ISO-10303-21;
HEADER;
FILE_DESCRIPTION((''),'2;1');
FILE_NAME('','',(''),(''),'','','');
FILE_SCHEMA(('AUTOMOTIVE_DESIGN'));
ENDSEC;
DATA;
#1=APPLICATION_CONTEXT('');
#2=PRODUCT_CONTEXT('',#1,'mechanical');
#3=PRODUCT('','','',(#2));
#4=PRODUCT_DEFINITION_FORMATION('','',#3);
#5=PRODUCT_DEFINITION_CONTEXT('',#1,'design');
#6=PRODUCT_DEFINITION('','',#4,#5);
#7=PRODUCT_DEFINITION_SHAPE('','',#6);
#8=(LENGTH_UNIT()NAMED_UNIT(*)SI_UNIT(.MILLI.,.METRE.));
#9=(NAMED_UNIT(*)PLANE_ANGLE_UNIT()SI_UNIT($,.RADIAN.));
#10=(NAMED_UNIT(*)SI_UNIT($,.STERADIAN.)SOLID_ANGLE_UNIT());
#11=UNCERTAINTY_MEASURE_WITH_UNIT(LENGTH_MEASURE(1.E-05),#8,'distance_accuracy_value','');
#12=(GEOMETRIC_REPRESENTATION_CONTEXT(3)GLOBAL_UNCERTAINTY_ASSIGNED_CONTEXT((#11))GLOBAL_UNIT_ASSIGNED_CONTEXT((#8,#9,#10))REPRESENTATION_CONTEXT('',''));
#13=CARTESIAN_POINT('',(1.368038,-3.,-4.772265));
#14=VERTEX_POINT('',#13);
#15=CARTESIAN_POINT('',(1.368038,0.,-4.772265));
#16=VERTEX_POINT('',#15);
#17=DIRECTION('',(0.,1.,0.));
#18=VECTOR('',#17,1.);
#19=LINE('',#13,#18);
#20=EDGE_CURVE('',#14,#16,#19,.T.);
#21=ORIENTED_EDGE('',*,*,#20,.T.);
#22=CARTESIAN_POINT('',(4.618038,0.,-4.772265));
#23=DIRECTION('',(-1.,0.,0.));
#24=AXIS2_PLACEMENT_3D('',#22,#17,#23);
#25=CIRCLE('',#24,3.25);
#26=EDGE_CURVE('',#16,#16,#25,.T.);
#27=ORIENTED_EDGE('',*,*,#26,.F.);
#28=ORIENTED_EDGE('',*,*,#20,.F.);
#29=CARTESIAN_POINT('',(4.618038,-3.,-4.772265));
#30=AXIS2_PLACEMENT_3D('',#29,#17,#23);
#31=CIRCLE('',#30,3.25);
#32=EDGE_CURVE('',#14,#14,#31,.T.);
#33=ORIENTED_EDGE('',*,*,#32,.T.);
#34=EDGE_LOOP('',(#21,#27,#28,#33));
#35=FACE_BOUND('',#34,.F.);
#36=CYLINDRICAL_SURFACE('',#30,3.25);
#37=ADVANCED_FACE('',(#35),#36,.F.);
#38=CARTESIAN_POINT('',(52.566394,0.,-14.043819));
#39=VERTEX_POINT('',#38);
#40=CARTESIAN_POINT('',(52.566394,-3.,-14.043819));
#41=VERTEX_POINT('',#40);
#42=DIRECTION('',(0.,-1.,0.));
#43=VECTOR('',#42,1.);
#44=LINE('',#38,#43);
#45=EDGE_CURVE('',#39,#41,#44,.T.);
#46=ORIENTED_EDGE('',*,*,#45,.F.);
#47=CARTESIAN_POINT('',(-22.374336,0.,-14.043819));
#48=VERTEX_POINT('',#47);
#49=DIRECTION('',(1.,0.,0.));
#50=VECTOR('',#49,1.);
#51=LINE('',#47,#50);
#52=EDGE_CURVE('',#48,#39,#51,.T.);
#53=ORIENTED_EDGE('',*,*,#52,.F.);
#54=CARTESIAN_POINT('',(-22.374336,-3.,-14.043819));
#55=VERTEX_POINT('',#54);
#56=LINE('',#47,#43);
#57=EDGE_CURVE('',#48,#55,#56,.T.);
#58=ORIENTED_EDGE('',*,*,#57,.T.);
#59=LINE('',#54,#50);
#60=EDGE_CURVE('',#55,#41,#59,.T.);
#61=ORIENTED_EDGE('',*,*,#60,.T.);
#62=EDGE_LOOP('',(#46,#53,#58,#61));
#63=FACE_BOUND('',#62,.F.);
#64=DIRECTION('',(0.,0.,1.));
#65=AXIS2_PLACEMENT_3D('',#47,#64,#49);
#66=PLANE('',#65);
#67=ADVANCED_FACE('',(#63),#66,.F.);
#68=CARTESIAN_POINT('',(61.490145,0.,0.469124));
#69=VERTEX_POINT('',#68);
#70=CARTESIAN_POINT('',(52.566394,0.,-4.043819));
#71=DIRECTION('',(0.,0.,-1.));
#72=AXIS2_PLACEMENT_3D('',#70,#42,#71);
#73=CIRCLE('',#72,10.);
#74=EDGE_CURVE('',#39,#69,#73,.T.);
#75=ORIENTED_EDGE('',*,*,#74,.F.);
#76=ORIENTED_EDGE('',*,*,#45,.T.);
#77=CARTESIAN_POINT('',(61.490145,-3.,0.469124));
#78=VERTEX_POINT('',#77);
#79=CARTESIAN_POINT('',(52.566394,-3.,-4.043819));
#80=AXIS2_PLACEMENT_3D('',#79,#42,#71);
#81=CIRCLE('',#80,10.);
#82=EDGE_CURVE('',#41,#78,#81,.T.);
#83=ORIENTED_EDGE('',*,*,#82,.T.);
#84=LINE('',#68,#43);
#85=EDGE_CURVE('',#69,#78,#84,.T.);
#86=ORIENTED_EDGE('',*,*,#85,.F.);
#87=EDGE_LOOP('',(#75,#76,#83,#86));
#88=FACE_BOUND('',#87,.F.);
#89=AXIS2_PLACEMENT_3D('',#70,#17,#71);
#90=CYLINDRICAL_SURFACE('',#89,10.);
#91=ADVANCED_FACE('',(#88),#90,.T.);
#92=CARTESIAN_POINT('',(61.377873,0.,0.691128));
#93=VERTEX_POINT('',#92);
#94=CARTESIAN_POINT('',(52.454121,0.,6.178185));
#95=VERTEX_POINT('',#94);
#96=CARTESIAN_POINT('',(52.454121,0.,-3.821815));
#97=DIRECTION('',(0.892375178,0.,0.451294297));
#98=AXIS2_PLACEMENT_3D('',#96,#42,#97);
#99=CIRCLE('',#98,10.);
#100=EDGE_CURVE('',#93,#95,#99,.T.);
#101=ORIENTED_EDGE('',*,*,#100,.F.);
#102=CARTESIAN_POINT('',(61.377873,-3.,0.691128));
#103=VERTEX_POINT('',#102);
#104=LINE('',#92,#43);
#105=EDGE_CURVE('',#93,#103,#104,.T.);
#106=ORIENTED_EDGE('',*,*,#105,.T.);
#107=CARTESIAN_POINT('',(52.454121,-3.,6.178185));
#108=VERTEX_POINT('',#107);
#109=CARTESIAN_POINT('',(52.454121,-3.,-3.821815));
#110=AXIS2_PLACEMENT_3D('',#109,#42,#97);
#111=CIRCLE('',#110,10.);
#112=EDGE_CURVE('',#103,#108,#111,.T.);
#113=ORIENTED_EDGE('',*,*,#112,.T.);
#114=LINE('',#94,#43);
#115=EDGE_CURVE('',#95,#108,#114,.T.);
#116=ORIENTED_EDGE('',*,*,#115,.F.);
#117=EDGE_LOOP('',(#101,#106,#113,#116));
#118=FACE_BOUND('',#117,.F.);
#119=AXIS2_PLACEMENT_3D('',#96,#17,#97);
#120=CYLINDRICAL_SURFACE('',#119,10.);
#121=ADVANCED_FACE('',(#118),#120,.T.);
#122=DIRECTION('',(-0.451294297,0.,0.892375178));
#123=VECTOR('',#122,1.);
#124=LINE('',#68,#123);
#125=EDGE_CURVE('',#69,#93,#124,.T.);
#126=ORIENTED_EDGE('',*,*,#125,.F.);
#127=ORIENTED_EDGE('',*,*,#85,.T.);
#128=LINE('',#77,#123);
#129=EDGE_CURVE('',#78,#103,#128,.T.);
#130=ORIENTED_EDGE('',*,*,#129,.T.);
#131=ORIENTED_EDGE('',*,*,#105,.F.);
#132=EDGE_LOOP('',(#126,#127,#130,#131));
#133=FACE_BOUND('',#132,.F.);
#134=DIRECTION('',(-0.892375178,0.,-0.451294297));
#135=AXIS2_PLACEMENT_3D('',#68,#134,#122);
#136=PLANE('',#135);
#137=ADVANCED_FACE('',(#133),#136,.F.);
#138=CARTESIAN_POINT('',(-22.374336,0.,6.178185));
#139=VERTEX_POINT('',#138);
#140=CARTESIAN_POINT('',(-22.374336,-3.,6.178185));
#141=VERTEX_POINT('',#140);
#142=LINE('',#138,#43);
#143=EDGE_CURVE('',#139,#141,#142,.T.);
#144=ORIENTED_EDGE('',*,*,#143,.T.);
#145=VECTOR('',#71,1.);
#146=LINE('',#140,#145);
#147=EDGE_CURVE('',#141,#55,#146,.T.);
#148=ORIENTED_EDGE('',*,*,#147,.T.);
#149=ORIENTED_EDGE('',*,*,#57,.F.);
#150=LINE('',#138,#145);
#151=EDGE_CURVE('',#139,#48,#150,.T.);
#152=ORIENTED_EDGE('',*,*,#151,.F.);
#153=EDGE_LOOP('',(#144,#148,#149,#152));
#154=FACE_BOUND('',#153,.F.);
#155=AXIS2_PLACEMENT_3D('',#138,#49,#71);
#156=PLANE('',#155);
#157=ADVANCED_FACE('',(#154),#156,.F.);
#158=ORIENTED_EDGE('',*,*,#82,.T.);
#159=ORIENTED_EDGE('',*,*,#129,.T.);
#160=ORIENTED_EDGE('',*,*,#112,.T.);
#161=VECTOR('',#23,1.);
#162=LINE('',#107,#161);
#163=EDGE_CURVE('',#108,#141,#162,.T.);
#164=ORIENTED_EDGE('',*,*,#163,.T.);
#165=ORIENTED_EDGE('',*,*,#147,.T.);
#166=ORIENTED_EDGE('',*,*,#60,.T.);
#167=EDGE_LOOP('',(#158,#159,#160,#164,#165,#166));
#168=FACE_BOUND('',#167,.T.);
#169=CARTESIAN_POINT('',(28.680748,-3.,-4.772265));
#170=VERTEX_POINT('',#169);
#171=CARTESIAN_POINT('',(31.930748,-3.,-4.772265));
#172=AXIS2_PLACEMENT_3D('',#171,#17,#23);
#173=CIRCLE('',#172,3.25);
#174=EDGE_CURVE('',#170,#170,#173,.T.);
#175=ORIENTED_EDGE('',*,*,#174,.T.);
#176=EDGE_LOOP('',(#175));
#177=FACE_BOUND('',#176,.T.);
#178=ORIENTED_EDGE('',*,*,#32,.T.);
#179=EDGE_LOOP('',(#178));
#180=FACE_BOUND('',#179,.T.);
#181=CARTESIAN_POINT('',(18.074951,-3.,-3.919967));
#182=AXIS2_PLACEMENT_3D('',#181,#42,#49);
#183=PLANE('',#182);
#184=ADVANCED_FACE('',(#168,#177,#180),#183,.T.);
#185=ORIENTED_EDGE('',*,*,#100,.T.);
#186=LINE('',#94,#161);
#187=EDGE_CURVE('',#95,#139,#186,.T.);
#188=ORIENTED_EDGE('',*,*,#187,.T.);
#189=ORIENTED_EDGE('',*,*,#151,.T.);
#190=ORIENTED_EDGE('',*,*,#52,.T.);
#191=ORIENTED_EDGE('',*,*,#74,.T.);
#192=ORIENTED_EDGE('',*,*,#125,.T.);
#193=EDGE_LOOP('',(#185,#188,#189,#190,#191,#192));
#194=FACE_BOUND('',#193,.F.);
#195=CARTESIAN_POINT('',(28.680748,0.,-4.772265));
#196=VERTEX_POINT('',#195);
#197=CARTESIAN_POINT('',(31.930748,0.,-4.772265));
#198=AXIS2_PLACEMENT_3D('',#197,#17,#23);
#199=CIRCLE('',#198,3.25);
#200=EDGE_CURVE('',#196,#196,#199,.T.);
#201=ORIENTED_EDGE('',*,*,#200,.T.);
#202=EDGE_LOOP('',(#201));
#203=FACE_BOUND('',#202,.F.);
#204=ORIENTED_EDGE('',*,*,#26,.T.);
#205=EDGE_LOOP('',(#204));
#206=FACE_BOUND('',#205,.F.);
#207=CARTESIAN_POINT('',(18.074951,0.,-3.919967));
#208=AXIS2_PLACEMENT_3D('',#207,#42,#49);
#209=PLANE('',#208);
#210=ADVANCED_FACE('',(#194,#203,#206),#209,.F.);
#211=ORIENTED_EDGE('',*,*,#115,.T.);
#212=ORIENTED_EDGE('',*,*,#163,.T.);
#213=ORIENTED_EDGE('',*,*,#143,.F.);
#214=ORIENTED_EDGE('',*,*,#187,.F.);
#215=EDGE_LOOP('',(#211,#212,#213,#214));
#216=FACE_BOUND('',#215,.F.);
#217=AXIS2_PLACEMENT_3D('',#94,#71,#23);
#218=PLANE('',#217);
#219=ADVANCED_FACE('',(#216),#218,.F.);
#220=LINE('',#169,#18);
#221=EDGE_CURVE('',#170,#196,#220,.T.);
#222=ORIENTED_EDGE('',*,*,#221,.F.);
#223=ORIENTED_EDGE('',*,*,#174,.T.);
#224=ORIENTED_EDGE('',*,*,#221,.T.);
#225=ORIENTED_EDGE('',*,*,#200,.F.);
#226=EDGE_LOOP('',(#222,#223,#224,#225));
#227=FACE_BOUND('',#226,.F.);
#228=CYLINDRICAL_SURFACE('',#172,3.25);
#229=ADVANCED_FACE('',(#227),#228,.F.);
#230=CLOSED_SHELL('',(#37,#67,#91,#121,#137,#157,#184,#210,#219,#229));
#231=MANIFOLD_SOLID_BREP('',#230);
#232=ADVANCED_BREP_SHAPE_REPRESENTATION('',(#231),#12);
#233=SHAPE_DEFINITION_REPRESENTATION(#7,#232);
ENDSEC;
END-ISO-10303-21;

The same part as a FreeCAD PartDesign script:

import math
import FreeCAD as App
import Part
import Sketcher
from FreeCAD import Vector

doc = App.newDocument("Part")
body = doc.addObject("PartDesign::Body", "Body")

sketch1 = body.newObject("Sketcher::SketchObject", "Sketch")
sketch1.AttachmentSupport = (doc.getObject("XZ_Plane"), [""])
sketch1.MapMode = "FlatFace"
sketch1.addGeometry([
    Part.LineSegment(Vector(52.454121, 6.178185, 0), Vector(-22.374336, 6.178185, 0)),
    Part.LineSegment(Vector(-22.374336, 6.178185, 0), Vector(-22.374336, -14.043819, 0)),
    Part.LineSegment(Vector(-22.374336, -14.043819, 0), Vector(52.566394, -14.043819, 0)),
    Part.ArcOfCircle(Part.Circle(Vector(52.566394, -4.043819, 0), Vector(0, 0, 1), 10), math.radians(-90), math.radians(26.826755)),
    Part.LineSegment(Vector(61.490145, 0.469124, 0), Vector(61.377873, 0.691128, 0)),
    Part.ArcOfCircle(Part.Circle(Vector(52.454121, -3.821815, 0), Vector(0, 0, 1), 10), math.radians(26.826755), math.radians(90)),
], False)
sketch1.addConstraint([
    Sketcher.Constraint("Coincident", 0, 2, 1, 1),
    Sketcher.Constraint("Coincident", 1, 2, 2, 1),
    Sketcher.Constraint("Coincident", 2, 2, 3, 1),
    Sketcher.Constraint("Coincident", 3, 2, 4, 1),
    Sketcher.Constraint("Coincident", 4, 2, 5, 1),
    Sketcher.Constraint("Coincident", 5, 2, 0, 1),
    Sketcher.Constraint("Horizontal", 0),
    Sketcher.Constraint("Vertical", 1),
    Sketcher.Constraint("Horizontal", 2),
    Sketcher.Constraint("Radius", 3, 10.0),
    Sketcher.Constraint("Radius", 5, 10.0),
    Sketcher.Constraint("DistanceX", 2, 1, 2, 2, 74.940729),
    Sketcher.Constraint("Distance", 4, 0.248779),
    Sketcher.Constraint("DistanceX", 0, 2, 0, 1, 74.828457),
    Sketcher.Constraint("DistanceY", 1, 2, 1, 1, 20.222004),
    Sketcher.Constraint("DistanceY", 3, 3, -1, 1, 4.043819),
    Sketcher.Constraint("DistanceX", -1, 1, 5, 3, 52.454121),
    Sketcher.Constraint("DistanceX", -1, 1, 5, 2, 52.454121),
    Sketcher.Constraint("DistanceX", 0, 2, 3, 3, 74.940729),
    Sketcher.Constraint("DistanceX", 3, 3, 3, 2, 8.923752),
])
pad1 = body.newObject("PartDesign::Pad", "Pad")
pad1.Profile = sketch1
pad1.Length = 3

sketch2 = body.newObject("Sketcher::SketchObject", "Sketch001")
sketch2.AttachmentSupport = (doc.getObject("XZ_Plane"), [""])
sketch2.MapMode = "FlatFace"
sketch2.addGeometry([
    Part.Circle(Vector(31.9, -4.8, 0), Vector(0, 0, 1), 1.6),
    Part.Circle(Vector(4.6, -4.8, 0), Vector(0, 0, 1), 1.6),
], False)
sketch2.addConstraint([
    Sketcher.Constraint("Equal", 0, 1),
    Sketcher.Constraint("Horizontal", 0, 3, 1, 3),
    Sketcher.Constraint("Diameter", 0, 3.3),
    Sketcher.Constraint("DistanceX", -1, 1, 0, 3, 31.930748),
    Sketcher.Constraint("DistanceX", 1, 3, 0, 3, 27.31271),
    Sketcher.Constraint("DistanceY", 0, 3, -1, 1, 4.772265),
])
doc.recompute()
hole = body.newObject("PartDesign::Hole", "Hole")
hole.Profile = sketch2
hole.ThreadType = "None"
hole.Diameter = 3.3
hole.DepthType = "Dimension"
hole.Depth = 14.4
hole.DrillPoint = "Angled"
hole.DrillPointAngle = 118
hole.HoleCutType = "Counterbore"
hole.HoleCutDiameter = 6.5
hole.HoleCutDepth = 3
hole.Reversed = True

doc.recompute()
